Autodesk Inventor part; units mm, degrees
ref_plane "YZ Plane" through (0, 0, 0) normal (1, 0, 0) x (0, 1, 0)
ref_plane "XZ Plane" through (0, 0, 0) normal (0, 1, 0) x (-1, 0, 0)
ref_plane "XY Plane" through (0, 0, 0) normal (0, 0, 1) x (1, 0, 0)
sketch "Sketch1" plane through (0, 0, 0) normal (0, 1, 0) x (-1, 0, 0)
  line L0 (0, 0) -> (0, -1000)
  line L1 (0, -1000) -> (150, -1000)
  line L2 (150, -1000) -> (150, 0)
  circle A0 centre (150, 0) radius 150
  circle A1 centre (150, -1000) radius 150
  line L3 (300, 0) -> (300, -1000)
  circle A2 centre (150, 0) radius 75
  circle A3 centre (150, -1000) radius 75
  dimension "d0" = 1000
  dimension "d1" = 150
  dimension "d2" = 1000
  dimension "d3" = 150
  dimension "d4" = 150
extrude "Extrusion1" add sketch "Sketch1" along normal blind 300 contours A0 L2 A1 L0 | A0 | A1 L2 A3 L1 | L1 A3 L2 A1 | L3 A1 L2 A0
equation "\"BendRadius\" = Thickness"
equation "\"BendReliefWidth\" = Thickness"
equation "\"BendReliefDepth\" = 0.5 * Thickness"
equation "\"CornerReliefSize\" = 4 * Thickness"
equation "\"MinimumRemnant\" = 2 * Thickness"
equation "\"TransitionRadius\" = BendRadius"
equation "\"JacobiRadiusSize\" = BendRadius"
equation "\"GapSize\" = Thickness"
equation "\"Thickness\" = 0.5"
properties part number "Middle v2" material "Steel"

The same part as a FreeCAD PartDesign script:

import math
import FreeCAD as App
import Part
import Sketcher
Q = App.Units.Quantity

doc = App.newDocument("Part")
params = doc.addObject("Spreadsheet::Sheet", "Params")
for row, (alias, value) in enumerate([
    ("sketch1_diameter", "150 mm"),
    ("sketch1_radius", "150 mm"),
    ("sketch1_height", "1000 mm"),
    ("pad1_length", "300 mm"),
], start=1):
    params.set(f"A{row}", alias)
    params.set(f"B{row}", "=" + value)
    params.setAlias(f"B{row}", alias)

body = doc.addObject("PartDesign::Body", "Body")

sketch1 = body.newObject("Sketcher::SketchObject", "Sketch")
sketch1.AttachmentSupport = (doc.getObject("XZ_Plane"), [""])
sketch1.MapMode = "FlatFace"
sketch1.addGeometry(Part.LineSegment(App.Vector(0, 0, 0), App.Vector(0, -1000, 0)), False)
sketch1.addGeometry(Part.ArcOfCircle(Part.Circle(App.Vector(-150, -1000, 0), App.Vector(0, 0, 1), 150), math.radians(180), math.radians(360)), False)
sketch1.addGeometry(Part.LineSegment(App.Vector(-300, -1000, 0), App.Vector(-300, 0, 0)), False)
sketch1.addGeometry(Part.ArcOfCircle(Part.Circle(App.Vector(-150, 0, 0), App.Vector(0, 0, 1), 150), math.radians(0), math.radians(180)), False)
sketch1.addGeometry(Part.Circle(App.Vector(-150, 0, 0), App.Vector(0, 0, 1), 75), False)
sketch1.addGeometry(Part.Circle(App.Vector(-150, -1000, 0), App.Vector(0, 0, 1), 75), False)
sketch1.addConstraint(Sketcher.Constraint("Tangent", 0, 2, 1, 2))
sketch1.addConstraint(Sketcher.Constraint("Tangent", 1, 1, 2, 1))
sketch1.addConstraint(Sketcher.Constraint("Tangent", 2, 2, 3, 2))
sketch1.addConstraint(Sketcher.Constraint("Tangent", 3, 1, 0, 1))
sketch1.addConstraint(Sketcher.Constraint("Vertical", 0))
sketch1.addConstraint(Sketcher.Constraint("Vertical", 2))
sketch1.addConstraint(Sketcher.Constraint("Coincident", 3, 1, -1, 1))
sketch1.addConstraint(Sketcher.Constraint("Coincident", 4, 3, 3, 3))
sketch1.addConstraint(Sketcher.Constraint("Coincident", 5, 3, 1, 3))
sketch1.addConstraint(Sketcher.Constraint("Equal", 4, 5))
sketch1.addConstraint(Sketcher.Constraint("Diameter", 4, Q("150 mm")))
sketch1.addConstraint(Sketcher.Constraint("Radius", 1, Q("150 mm")))
sketch1.addConstraint(Sketcher.Constraint("DistanceY", 0, 2, 0, 1, Q("1000 mm")))
sketch1.setExpression("Constraints[10]", "Params.sketch1_diameter")
sketch1.setExpression("Constraints[11]", "Params.sketch1_radius")
sketch1.setExpression("Constraints[12]", "Params.sketch1_height")
pad1 = body.newObject("PartDesign::Pad", "Pad")
pad1.Profile = sketch1
pad1.setExpression("Length", "Params.pad1_length")
pad1.Reversed = True

doc.recompute()
